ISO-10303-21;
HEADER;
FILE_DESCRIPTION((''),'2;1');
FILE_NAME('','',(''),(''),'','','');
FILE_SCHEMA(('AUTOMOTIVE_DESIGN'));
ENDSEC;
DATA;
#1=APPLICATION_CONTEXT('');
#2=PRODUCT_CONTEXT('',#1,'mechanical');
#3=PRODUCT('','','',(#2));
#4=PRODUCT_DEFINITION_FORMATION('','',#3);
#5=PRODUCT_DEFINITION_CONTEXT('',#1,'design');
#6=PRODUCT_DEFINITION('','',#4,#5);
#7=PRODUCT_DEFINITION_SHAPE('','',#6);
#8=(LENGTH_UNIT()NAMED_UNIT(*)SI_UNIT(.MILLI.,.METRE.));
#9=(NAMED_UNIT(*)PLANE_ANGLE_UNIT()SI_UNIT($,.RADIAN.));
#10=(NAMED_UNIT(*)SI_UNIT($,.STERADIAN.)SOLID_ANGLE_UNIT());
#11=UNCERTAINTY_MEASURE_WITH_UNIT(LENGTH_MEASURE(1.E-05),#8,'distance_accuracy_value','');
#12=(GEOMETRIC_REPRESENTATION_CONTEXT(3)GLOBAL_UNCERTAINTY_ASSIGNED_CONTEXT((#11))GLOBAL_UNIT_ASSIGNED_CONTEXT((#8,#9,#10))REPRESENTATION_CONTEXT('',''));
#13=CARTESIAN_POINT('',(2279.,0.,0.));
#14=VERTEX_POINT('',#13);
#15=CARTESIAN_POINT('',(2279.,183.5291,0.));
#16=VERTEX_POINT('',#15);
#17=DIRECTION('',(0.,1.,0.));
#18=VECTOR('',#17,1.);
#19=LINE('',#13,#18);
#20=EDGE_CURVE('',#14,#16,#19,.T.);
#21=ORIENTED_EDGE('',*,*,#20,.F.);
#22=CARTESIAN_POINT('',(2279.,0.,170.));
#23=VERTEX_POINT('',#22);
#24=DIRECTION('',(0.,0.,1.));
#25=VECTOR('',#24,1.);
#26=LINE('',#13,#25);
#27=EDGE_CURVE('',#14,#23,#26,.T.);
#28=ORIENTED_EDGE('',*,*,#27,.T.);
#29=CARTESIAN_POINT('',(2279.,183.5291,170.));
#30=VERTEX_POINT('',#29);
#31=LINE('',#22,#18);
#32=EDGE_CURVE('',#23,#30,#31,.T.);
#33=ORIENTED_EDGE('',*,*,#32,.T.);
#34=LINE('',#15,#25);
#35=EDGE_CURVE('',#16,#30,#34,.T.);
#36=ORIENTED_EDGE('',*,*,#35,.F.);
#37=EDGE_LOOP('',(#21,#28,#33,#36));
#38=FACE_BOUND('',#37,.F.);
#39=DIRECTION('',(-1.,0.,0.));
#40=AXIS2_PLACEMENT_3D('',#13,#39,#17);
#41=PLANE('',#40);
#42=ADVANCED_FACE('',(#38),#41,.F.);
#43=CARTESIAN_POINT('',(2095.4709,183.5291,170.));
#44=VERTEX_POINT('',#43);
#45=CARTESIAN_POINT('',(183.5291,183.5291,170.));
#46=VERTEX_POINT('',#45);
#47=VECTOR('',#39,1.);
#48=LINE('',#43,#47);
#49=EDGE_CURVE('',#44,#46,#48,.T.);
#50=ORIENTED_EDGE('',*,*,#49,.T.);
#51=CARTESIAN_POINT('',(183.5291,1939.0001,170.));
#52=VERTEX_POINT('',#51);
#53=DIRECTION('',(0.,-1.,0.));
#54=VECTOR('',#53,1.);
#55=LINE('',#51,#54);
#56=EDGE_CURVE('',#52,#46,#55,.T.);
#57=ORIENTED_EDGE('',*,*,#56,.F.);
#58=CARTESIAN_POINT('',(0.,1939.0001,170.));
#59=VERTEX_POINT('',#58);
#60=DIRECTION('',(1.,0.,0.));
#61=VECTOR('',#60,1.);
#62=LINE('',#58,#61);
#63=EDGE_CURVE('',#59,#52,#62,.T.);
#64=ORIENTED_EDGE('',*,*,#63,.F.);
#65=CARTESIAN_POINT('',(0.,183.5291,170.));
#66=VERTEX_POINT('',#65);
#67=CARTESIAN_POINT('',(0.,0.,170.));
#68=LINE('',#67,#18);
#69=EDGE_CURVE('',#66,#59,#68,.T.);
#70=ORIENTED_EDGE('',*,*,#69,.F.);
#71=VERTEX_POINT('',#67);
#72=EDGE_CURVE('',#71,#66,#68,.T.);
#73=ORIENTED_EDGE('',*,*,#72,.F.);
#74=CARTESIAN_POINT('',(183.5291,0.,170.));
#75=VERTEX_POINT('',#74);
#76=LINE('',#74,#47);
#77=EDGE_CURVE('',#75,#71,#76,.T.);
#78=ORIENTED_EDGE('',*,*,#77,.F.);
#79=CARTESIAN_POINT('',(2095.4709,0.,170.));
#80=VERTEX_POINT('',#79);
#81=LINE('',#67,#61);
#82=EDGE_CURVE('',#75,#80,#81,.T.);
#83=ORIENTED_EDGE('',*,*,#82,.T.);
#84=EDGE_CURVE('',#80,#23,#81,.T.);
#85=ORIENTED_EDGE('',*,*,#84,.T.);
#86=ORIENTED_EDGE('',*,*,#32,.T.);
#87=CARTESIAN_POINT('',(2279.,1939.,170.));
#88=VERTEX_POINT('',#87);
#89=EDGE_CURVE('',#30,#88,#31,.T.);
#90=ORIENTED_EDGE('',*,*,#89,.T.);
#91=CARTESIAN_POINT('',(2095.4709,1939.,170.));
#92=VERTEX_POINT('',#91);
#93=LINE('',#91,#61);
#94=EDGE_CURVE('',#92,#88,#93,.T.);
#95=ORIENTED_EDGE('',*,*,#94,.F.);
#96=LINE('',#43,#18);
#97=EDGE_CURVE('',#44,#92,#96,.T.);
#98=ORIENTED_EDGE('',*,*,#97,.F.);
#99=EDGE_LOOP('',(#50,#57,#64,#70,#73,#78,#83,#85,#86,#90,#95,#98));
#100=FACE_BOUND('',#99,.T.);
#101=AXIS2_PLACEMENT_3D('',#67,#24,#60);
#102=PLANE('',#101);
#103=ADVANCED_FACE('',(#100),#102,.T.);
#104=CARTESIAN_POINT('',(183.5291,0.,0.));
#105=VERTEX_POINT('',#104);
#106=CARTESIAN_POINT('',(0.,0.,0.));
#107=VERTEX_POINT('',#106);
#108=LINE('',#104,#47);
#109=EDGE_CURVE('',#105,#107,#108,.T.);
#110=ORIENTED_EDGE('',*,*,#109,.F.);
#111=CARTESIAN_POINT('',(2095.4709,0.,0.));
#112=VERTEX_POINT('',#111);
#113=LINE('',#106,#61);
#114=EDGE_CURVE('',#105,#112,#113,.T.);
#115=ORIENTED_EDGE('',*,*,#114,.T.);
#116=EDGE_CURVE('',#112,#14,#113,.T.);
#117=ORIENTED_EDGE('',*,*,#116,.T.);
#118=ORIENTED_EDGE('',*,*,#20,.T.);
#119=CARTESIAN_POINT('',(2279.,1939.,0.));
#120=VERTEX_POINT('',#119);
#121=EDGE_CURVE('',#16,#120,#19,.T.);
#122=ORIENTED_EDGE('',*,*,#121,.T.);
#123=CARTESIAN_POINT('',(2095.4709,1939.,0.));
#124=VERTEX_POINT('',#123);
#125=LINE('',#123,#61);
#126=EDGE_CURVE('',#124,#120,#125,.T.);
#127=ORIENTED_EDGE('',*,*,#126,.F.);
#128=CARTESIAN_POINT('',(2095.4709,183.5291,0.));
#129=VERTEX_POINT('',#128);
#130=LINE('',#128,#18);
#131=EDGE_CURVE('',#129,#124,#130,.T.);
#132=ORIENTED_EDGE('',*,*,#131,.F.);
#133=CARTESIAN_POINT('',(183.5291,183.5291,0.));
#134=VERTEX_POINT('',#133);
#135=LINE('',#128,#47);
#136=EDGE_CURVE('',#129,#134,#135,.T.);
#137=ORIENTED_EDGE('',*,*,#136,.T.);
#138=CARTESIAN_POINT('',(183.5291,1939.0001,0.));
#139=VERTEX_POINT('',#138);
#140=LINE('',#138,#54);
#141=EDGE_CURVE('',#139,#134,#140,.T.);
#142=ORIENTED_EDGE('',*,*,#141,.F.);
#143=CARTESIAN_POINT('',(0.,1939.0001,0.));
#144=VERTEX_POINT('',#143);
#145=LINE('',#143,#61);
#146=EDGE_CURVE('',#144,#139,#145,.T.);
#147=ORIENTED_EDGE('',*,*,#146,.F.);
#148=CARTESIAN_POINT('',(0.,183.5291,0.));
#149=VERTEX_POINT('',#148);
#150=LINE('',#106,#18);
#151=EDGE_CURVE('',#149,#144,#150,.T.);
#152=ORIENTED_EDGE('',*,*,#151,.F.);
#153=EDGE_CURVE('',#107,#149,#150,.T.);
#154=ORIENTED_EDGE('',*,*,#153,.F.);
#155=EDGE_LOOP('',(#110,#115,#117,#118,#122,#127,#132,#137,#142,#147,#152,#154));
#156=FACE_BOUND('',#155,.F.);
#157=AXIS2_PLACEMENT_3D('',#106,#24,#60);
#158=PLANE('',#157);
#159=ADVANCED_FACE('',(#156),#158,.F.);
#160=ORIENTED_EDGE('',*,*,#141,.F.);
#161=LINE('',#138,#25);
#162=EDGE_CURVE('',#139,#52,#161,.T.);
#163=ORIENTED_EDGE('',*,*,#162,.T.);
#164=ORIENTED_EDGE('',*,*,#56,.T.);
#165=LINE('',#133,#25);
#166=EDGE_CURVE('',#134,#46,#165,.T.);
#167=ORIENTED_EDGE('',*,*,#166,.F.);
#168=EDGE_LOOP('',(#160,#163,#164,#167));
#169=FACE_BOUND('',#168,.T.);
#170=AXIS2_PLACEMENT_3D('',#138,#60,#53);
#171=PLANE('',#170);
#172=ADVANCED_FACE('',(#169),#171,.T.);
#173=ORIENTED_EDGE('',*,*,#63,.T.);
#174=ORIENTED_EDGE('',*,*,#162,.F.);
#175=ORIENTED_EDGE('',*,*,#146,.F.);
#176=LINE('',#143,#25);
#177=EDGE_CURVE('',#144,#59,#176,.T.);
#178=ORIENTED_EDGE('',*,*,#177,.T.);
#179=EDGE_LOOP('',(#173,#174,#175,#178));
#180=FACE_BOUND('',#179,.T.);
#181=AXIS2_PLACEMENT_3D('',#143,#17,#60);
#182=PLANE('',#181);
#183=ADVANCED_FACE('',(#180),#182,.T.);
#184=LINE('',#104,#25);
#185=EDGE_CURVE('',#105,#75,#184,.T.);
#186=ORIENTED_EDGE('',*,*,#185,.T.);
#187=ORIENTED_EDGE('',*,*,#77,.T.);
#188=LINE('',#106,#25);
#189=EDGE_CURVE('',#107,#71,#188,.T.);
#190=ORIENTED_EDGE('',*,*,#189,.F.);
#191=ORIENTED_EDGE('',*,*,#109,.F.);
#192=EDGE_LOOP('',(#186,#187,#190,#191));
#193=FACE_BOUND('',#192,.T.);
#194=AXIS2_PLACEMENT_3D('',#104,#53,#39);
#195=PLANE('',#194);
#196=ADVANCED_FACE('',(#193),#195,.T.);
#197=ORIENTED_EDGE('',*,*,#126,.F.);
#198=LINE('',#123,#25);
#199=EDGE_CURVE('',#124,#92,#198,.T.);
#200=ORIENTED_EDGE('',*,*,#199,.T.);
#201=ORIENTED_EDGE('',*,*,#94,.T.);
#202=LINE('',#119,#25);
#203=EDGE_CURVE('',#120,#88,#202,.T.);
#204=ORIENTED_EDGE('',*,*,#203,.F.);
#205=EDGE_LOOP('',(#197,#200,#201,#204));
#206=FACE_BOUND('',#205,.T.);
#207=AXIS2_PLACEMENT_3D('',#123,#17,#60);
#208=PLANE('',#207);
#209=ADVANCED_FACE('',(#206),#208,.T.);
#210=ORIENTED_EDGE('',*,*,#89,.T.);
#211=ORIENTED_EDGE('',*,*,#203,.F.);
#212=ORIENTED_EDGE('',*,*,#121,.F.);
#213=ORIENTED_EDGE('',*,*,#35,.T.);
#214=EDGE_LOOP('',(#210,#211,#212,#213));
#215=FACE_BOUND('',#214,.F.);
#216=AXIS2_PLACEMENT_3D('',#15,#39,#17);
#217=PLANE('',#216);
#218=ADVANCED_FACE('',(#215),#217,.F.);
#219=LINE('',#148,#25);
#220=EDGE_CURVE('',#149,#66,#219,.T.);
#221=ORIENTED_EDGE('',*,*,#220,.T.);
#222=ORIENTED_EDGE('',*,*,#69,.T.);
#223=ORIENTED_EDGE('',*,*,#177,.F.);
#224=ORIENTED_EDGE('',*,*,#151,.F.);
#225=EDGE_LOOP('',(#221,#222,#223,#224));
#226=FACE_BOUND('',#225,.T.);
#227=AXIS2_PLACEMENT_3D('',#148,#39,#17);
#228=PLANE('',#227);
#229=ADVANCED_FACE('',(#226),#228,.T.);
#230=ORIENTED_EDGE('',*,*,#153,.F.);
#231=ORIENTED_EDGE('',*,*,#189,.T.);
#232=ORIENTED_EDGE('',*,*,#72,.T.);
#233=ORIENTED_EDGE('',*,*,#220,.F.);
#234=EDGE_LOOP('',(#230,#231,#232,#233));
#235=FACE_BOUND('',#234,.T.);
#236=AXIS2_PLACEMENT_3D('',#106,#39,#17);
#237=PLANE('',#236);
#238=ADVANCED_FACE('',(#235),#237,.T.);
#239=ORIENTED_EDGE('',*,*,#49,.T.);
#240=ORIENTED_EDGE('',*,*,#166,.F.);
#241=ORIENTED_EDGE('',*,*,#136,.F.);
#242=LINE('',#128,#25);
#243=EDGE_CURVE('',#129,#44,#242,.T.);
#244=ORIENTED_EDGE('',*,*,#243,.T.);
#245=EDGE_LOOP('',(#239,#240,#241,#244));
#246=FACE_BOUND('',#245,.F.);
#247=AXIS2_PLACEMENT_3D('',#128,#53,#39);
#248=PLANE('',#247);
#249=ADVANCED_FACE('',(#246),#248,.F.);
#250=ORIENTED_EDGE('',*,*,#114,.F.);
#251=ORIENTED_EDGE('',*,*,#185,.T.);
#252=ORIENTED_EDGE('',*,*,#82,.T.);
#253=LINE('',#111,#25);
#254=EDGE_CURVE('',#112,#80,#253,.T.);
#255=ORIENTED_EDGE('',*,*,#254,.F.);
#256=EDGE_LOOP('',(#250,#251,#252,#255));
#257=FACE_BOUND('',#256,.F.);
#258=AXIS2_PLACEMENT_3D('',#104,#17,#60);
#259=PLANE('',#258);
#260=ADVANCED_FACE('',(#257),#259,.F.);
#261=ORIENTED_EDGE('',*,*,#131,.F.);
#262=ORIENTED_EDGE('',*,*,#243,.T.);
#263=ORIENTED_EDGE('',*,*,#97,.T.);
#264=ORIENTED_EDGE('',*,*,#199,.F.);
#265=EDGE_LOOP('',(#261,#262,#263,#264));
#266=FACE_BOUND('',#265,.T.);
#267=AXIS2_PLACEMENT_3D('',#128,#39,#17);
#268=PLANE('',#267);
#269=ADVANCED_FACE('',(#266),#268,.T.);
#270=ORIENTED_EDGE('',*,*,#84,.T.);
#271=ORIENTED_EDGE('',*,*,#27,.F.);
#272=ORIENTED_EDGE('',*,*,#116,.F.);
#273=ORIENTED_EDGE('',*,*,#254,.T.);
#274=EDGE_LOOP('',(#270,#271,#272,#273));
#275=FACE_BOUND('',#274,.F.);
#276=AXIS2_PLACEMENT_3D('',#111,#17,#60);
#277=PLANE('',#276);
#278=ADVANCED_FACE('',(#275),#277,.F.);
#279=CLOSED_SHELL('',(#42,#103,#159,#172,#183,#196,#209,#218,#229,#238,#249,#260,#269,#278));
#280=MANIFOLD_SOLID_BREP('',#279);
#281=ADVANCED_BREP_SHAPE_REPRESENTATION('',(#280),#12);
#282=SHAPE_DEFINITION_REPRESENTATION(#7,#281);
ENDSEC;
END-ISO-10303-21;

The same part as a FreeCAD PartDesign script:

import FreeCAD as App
import Part
import Sketcher

V = App.Vector
Q = App.Units.Quantity

doc = App.newDocument("Part")
body = doc.addObject("PartDesign::Body", "Body")

sketch1 = body.newObject("Sketcher::SketchObject", "Sketch")
sketch1.AttachmentSupport = (doc.getObject("XY_Plane"), [""])
sketch1.MapMode = "FlatFace"
sketch1.addGeometry(Part.LineSegment(V(0, 0, 0), V(2279, 0, 0)), False)
sketch1.addGeometry(Part.LineSegment(V(2279, 0, 0), V(2279, 1939, 0)), False)
sketch1.addGeometry(Part.LineSegment(V(2279, 1939, 0), V(2095, 1939, 0)), False)
sketch1.addGeometry(Part.LineSegment(V(2095, 1939, 0), V(2095, 184, 0)), False)
sketch1.addGeometry(Part.LineSegment(V(2095, 184, 0), V(184, 184, 0)), False)
sketch1.addGeometry(Part.LineSegment(V(184, 184, 0), V(184, 1939, 0)), False)
sketch1.addGeometry(Part.LineSegment(V(184, 1939, 0), V(0, 1939, 0)), False)
sketch1.addGeometry(Part.LineSegment(V(0, 1939, 0), V(0, 0, 0)), False)
sketch1.addConstraint(Sketcher.Constraint("Coincident", 0, 2, 1, 1))
sketch1.addConstraint(Sketcher.Constraint("Coincident", 1, 2, 2, 1))
sketch1.addConstraint(Sketcher.Constraint("Coincident", 2, 2, 3, 1))
sketch1.addConstraint(Sketcher.Constraint("Coincident", 3, 2, 4, 1))
sketch1.addConstraint(Sketcher.Constraint("Coincident", 4, 2, 5, 1))
sketch1.addConstraint(Sketcher.Constraint("Coincident", 5, 2, 6, 1))
sketch1.addConstraint(Sketcher.Constraint("Coincident", 6, 2, 7, 1))
sketch1.addConstraint(Sketcher.Constraint("Coincident", 7, 2, 0, 1))
sketch1.addConstraint(Sketcher.Constraint("Horizontal", 0))
sketch1.addConstraint(Sketcher.Constraint("Vertical", 1))
sketch1.addConstraint(Sketcher.Constraint("Horizontal", 2))
sketch1.addConstraint(Sketcher.Constraint("Vertical", 3))
sketch1.addConstraint(Sketcher.Constraint("Horizontal", 4))
sketch1.addConstraint(Sketcher.Constraint("Vertical", 5))
sketch1.addConstraint(Sketcher.Constraint("Horizontal", 6))
sketch1.addConstraint(Sketcher.Constraint("Vertical", 7))
sketch1.addConstraint(Sketcher.Constraint("Coincident", 7, 2, -1, 1))
sketch1.addConstraint(Sketcher.Constraint("Horizontal", 2, 2, 5, 2))
sketch1.addConstraint(Sketcher.Constraint("Equal", 2, 6))
sketch1.addConstraint(Sketcher.Constraint("DistanceX", 0, 1, 0, 2, Q("2279 mm")))
sketch1.addConstraint(Sketcher.Constraint("DistanceY", 1, 1, 1, 2, Q("1939 mm")))
sketch1.addConstraint(Sketcher.Constraint("DistanceY", 3, 2, 3, 1, Q("1755.471 mm")))
sketch1.addConstraint(Sketcher.Constraint("DistanceX", 2, 2, 2, 1, Q("183.529 mm")))
pad1 = body.newObject("PartDesign::Pad", "Pad")
pad1.Profile = sketch1
pad1.Length = 170

doc.recompute()
